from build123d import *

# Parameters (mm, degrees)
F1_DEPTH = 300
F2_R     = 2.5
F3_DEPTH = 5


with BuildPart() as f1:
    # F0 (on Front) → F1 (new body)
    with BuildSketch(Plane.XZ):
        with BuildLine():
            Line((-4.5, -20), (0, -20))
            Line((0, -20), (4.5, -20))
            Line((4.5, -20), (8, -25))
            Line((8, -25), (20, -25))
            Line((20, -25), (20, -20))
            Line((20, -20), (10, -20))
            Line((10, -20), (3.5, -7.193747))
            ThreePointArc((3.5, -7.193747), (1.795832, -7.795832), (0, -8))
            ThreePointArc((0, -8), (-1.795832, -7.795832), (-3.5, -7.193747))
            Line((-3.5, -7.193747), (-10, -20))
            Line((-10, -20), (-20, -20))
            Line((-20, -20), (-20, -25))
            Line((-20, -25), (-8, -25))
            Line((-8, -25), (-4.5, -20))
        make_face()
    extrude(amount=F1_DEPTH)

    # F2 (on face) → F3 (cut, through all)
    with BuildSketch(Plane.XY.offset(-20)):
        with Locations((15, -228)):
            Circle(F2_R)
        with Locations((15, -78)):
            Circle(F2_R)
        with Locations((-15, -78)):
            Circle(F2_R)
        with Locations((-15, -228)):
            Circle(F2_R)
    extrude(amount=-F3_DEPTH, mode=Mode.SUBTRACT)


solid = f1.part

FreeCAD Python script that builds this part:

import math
import FreeCAD as App
import Part
import Sketcher

V = App.Vector
Q = App.Units.Quantity

doc = App.newDocument("Part")
body = doc.addObject("PartDesign::Body", "Body")

# Sketch on XZ plane
sketch1 = body.newObject("Sketcher::SketchObject", "Sketch")
sketch1.AttachmentSupport = (doc.getObject("XZ_Plane"), [""])
sketch1.MapMode = "FlatFace"
sketch1.addGeometry([
    Part.LineSegment(V(-4.5, -20, 0), V(4.5, -20, 0)),  # 0
    Part.LineSegment(V(4.5, -20, 0), V(8, -25, 0)),  # 1
    Part.LineSegment(V(8, -25, 0), V(20, -25, 0)),  # 2
    Part.LineSegment(V(20, -25, 0), V(20, -20, 0)),  # 3
    Part.LineSegment(V(20, -20, 0), V(10, -20, 0)),  # 4
    Part.LineSegment(V(10, -20, 0), V(3.5, -7.193747, 0)),  # 5
    Part.ArcOfCircle(Part.Circle(V(0.000006, -0.000027, 0), V(0, 0, 1), 7.999973), math.radians(-90.00004), math.radians(-64.055471)),  # 6
    Part.ArcOfCircle(Part.Circle(V(-0.000006, -0.000027, 0), V(0, 0, 1), 7.999973), math.radians(-115.944529), math.radians(-89.99996)),  # 7
    Part.LineSegment(V(-3.5, -7.193747, 0), V(-10, -20, 0)),  # 8
    Part.LineSegment(V(-10, -20, 0), V(-20, -20, 0)),  # 9
    Part.LineSegment(V(-20, -20, 0), V(-20, -25, 0)),  # 10
    Part.LineSegment(V(-20, -25, 0), V(-8, -25, 0)),  # 11
    Part.LineSegment(V(-8, -25, 0), V(-4.5, -20, 0)),  # 12
], False)
sketch1.addConstraint([
    Sketcher.Constraint("Coincident", 0, 2, 1, 1),
    Sketcher.Constraint("Coincident", 1, 2, 2, 1),
    Sketcher.Constraint("Coincident", 2, 2, 3, 1),
    Sketcher.Constraint("Coincident", 3, 2, 4, 1),
    Sketcher.Constraint("Coincident", 4, 2, 5, 1),
    Sketcher.Constraint("Coincident", 5, 2, 6, 2),
    Sketcher.Constraint("Tangent", 6, 1, 7, 2),
    Sketcher.Constraint("Coincident", 7, 1, 8, 1),
    Sketcher.Constraint("Coincident", 8, 2, 9, 1),
    Sketcher.Constraint("Coincident", 9, 2, 10, 1),
    Sketcher.Constraint("Coincident", 10, 2, 11, 1),
    Sketcher.Constraint("Coincident", 11, 2, 12, 1),
    Sketcher.Constraint("Coincident", 12, 2, 0, 1),
    Sketcher.Constraint("Horizontal", 0),
    Sketcher.Constraint("Horizontal", 2),
    Sketcher.Constraint("Vertical", 3),
    Sketcher.Constraint("Horizontal", 4),
    Sketcher.Constraint("Horizontal", 9),
    Sketcher.Constraint("Vertical", 10),
    Sketcher.Constraint("Horizontal", 11),
    Sketcher.Constraint("Equal", 6, 7),
    Sketcher.Constraint("Symmetric", 5, 2, 7, 1, -2),
    Sketcher.Constraint("Symmetric", 4, 2, 8, 2, -2),
    Sketcher.Constraint("Symmetric", 2, 2, 10, 2, -2),
    Sketcher.Constraint("PointOnObject", 6, 1, -2),
    Sketcher.Constraint("Horizontal", 0, 2, 3, 2),
    Sketcher.Constraint("Equal", 2, 11),
    Sketcher.Constraint("Equal", 1, 12),
    Sketcher.Constraint("DistanceX", 0, 1, 0, 2, Q("9 mm")),
    Sketcher.Constraint("DistanceX", 2, 1, 2, 2, Q("12 mm")),
    Sketcher.Constraint("DistanceX", 4, 2, 4, 1, Q("10 mm")),
    Sketcher.Constraint("DistanceY", 3, 1, 3, 2, Q("5 mm")),
    Sketcher.Constraint("DistanceY", 0, 2, -1, 1, Q("20 mm")),
    Sketcher.Constraint("DistanceX", -1, 1, 1, 2, Q("8 mm")),
    Sketcher.Constraint("DistanceY", 6, 1, -1, 1, Q("8 mm")),
    Sketcher.Constraint("DistanceX", 5, 2, 0, 2, Q("1 mm")),
    Sketcher.Constraint("Radius", 6, Q("7.999973 mm")),
])
pad1 = body.newObject("PartDesign::Pad", "Pad")
pad1.Profile = sketch1
pad1.Length = 300

# Sketch on XY plane
sketch2 = body.newObject("Sketcher::SketchObject", "Sketch001")
sketch2.AttachmentSupport = (doc.getObject("XY_Plane"), [""])
sketch2.MapMode = "FlatFace"
sketch2.AttachmentOffset = App.Placement(V(0, 0, -20), App.Rotation())
sketch2.addGeometry([
    Part.Circle(V(15, -228, 0), V(0, 0, 1), 2.5),
    Part.Circle(V(15, -78, 0), V(0, 0, 1), 2.5),
    Part.Circle(V(-15, -78, 0), V(0, 0, 1), 2.5),
    Part.Circle(V(-15, -228, 0), V(0, 0, 1), 2.5),
], False)
sketch2.addConstraint([
    Sketcher.Constraint("Equal", 0, 1),
    Sketcher.Constraint("Equal", 1, 2),
    Sketcher.Constraint("Equal", 2, 3),
    Sketcher.Constraint("Symmetric", 1, 3, 2, 3, -2),
    Sketcher.Constraint("Symmetric", 0, 3, 3, 3, -2),
    Sketcher.Constraint("Vertical", 0, 3, 1, 3),
    Sketcher.Constraint("Diameter", 0, Q("5 mm")),
    Sketcher.Constraint("DistanceX", -1, 1, 0, 3, Q("15 mm")),
    Sketcher.Constraint("DistanceY", 0, 3, -1, 1, Q("228 mm")),
    Sketcher.Constraint("DistanceY", 1, 3, -1, 1, Q("78 mm")),
])
pocket1 = body.newObject("PartDesign::Pocket", "Pocket")
pocket1.Profile = sketch2
pocket1.Type = "ThroughAll"

doc.recompute()
